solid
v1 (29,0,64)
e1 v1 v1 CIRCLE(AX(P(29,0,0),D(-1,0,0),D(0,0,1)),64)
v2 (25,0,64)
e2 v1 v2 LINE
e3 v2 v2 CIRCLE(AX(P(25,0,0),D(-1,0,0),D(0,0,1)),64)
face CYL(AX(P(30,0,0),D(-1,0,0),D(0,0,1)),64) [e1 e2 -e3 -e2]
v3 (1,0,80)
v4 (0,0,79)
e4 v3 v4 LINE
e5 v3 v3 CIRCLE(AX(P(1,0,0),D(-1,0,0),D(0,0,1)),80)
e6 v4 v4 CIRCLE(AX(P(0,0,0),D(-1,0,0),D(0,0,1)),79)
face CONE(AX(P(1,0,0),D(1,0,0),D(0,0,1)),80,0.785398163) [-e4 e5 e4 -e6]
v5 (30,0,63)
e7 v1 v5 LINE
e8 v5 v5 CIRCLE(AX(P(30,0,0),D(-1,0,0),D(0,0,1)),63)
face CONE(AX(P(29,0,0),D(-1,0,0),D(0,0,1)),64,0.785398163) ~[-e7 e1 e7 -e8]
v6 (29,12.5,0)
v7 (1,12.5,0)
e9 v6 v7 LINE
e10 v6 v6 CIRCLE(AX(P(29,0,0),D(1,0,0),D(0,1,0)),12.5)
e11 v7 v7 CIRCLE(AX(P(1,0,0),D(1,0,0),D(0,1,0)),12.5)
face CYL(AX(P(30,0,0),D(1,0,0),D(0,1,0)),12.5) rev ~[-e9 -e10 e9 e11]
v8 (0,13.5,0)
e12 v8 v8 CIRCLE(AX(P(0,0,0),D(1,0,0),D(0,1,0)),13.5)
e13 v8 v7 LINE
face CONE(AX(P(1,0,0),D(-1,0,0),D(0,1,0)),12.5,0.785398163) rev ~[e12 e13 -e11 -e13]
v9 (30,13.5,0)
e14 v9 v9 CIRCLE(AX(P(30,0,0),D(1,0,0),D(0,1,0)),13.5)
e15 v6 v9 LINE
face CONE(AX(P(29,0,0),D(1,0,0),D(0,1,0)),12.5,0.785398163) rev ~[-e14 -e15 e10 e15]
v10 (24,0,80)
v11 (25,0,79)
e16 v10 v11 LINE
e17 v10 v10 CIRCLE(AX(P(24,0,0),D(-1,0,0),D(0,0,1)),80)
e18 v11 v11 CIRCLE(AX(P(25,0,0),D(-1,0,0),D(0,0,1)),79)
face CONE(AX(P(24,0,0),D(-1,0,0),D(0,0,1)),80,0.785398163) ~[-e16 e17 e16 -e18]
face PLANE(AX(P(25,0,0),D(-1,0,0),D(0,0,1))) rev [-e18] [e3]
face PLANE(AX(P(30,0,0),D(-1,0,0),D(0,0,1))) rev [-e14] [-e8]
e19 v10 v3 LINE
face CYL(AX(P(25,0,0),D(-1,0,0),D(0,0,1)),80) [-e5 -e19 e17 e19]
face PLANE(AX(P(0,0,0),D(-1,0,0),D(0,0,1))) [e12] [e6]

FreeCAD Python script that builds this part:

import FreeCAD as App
import Part
import Sketcher
from FreeCAD import Vector


def edges_at(feature, points):
    """Names of the edges that pass closest to the given points."""
    edges = feature.Shape.Edges
    near = lambda p: min(range(len(edges)), key=lambda i: edges[i].distToShape(Part.Vertex(*p))[0])
    return sorted({f"Edge{near(p) + 1}" for p in points})


def add_polygon(sketch, points):
    """Adds a closed chain of lines whose ends are joined by coincident constraints."""
    first, n = sketch.GeometryCount, len(points)
    for a, b in zip(points, points[1:] + points[:1]):
        sketch.addGeometry(Part.LineSegment(App.Vector(*a, 0), App.Vector(*b, 0)), False)
    for i in range(n):
        sketch.addConstraint(Sketcher.Constraint("Coincident", first + i, 2, first + (i + 1) % n, 1))

doc = App.newDocument("Part")
body = doc.addObject("PartDesign::Body", "Body")

# Sketch on XZ plane
sketch1 = doc.addObject("Sketcher::SketchObject", "Sketch")
body.addObject(sketch1)
sketch1.AttachmentSupport = (doc.XZ_Plane, [""])
sketch1.MapMode = "FlatFace"
add_polygon(sketch1, [(25, 80), (0, 80), (0, 0), (30, 0), (30, 64), (25, 64)])  # lines 0-5
sketch1.addConstraint([
    Sketcher.Constraint("Horizontal", 0),
    Sketcher.Constraint("Vertical", 1),
    Sketcher.Constraint("Horizontal", 2),
    Sketcher.Constraint("Vertical", 3),
    Sketcher.Constraint("Horizontal", 4),
    Sketcher.Constraint("Vertical", 5),
    Sketcher.Constraint("Coincident", 1, 2, -1, 1),
    Sketcher.Constraint("DistanceX", 0, 2, 0, 1, 25.0),
    Sketcher.Constraint("DistanceX", 2, 1, 2, 2, 30.0),
    Sketcher.Constraint("DistanceY", 1, 2, 1, 1, 80.0),
    Sketcher.Constraint("DistanceY", 3, 1, 3, 2, 64.0),
])
revolution = doc.addObject("PartDesign::Revolution", "Revolution")
body.addObject(revolution)
revolution.Profile = sketch1
revolution.ReferenceAxis = (sketch1, ["H_Axis"])
revolution.Angle = 360

# Sketch on YZ plane
sketch2 = doc.addObject("Sketcher::SketchObject", "Sketch001")
body.addObject(sketch2)
sketch2.AttachmentSupport = (doc.YZ_Plane, [""])
sketch2.MapMode = "FlatFace"
sketch2.AttachmentOffset = App.Placement(Vector(0, 0, 30), App.Rotation())
sketch2.addGeometry(Part.Circle(Vector(0, 0, 0), Vector(0, 0, 1), 12), False)
sketch2.addConstraint([
    Sketcher.Constraint("Coincident", 0, 3, -1, 1),
    Sketcher.Constraint("Diameter", 0, 25.0),
])
pocket1 = doc.addObject("PartDesign::Pocket", "Pocket")
body.addObject(pocket1)
pocket1.Profile = sketch2
pocket1.Length = 40
doc.recompute()

chamfer = doc.addObject("PartDesign::Chamfer", "Chamfer")
body.addObject(chamfer)
chamfer.Base = (pocket1, edges_at(pocket1, [
    (30, 0, -64),
    (30, -12.5, 0),
    (25, 0, -80),
    (0, 0, -80),
    (0, -12.5, 0),
]))
chamfer.Size = 1

doc.recompute()
